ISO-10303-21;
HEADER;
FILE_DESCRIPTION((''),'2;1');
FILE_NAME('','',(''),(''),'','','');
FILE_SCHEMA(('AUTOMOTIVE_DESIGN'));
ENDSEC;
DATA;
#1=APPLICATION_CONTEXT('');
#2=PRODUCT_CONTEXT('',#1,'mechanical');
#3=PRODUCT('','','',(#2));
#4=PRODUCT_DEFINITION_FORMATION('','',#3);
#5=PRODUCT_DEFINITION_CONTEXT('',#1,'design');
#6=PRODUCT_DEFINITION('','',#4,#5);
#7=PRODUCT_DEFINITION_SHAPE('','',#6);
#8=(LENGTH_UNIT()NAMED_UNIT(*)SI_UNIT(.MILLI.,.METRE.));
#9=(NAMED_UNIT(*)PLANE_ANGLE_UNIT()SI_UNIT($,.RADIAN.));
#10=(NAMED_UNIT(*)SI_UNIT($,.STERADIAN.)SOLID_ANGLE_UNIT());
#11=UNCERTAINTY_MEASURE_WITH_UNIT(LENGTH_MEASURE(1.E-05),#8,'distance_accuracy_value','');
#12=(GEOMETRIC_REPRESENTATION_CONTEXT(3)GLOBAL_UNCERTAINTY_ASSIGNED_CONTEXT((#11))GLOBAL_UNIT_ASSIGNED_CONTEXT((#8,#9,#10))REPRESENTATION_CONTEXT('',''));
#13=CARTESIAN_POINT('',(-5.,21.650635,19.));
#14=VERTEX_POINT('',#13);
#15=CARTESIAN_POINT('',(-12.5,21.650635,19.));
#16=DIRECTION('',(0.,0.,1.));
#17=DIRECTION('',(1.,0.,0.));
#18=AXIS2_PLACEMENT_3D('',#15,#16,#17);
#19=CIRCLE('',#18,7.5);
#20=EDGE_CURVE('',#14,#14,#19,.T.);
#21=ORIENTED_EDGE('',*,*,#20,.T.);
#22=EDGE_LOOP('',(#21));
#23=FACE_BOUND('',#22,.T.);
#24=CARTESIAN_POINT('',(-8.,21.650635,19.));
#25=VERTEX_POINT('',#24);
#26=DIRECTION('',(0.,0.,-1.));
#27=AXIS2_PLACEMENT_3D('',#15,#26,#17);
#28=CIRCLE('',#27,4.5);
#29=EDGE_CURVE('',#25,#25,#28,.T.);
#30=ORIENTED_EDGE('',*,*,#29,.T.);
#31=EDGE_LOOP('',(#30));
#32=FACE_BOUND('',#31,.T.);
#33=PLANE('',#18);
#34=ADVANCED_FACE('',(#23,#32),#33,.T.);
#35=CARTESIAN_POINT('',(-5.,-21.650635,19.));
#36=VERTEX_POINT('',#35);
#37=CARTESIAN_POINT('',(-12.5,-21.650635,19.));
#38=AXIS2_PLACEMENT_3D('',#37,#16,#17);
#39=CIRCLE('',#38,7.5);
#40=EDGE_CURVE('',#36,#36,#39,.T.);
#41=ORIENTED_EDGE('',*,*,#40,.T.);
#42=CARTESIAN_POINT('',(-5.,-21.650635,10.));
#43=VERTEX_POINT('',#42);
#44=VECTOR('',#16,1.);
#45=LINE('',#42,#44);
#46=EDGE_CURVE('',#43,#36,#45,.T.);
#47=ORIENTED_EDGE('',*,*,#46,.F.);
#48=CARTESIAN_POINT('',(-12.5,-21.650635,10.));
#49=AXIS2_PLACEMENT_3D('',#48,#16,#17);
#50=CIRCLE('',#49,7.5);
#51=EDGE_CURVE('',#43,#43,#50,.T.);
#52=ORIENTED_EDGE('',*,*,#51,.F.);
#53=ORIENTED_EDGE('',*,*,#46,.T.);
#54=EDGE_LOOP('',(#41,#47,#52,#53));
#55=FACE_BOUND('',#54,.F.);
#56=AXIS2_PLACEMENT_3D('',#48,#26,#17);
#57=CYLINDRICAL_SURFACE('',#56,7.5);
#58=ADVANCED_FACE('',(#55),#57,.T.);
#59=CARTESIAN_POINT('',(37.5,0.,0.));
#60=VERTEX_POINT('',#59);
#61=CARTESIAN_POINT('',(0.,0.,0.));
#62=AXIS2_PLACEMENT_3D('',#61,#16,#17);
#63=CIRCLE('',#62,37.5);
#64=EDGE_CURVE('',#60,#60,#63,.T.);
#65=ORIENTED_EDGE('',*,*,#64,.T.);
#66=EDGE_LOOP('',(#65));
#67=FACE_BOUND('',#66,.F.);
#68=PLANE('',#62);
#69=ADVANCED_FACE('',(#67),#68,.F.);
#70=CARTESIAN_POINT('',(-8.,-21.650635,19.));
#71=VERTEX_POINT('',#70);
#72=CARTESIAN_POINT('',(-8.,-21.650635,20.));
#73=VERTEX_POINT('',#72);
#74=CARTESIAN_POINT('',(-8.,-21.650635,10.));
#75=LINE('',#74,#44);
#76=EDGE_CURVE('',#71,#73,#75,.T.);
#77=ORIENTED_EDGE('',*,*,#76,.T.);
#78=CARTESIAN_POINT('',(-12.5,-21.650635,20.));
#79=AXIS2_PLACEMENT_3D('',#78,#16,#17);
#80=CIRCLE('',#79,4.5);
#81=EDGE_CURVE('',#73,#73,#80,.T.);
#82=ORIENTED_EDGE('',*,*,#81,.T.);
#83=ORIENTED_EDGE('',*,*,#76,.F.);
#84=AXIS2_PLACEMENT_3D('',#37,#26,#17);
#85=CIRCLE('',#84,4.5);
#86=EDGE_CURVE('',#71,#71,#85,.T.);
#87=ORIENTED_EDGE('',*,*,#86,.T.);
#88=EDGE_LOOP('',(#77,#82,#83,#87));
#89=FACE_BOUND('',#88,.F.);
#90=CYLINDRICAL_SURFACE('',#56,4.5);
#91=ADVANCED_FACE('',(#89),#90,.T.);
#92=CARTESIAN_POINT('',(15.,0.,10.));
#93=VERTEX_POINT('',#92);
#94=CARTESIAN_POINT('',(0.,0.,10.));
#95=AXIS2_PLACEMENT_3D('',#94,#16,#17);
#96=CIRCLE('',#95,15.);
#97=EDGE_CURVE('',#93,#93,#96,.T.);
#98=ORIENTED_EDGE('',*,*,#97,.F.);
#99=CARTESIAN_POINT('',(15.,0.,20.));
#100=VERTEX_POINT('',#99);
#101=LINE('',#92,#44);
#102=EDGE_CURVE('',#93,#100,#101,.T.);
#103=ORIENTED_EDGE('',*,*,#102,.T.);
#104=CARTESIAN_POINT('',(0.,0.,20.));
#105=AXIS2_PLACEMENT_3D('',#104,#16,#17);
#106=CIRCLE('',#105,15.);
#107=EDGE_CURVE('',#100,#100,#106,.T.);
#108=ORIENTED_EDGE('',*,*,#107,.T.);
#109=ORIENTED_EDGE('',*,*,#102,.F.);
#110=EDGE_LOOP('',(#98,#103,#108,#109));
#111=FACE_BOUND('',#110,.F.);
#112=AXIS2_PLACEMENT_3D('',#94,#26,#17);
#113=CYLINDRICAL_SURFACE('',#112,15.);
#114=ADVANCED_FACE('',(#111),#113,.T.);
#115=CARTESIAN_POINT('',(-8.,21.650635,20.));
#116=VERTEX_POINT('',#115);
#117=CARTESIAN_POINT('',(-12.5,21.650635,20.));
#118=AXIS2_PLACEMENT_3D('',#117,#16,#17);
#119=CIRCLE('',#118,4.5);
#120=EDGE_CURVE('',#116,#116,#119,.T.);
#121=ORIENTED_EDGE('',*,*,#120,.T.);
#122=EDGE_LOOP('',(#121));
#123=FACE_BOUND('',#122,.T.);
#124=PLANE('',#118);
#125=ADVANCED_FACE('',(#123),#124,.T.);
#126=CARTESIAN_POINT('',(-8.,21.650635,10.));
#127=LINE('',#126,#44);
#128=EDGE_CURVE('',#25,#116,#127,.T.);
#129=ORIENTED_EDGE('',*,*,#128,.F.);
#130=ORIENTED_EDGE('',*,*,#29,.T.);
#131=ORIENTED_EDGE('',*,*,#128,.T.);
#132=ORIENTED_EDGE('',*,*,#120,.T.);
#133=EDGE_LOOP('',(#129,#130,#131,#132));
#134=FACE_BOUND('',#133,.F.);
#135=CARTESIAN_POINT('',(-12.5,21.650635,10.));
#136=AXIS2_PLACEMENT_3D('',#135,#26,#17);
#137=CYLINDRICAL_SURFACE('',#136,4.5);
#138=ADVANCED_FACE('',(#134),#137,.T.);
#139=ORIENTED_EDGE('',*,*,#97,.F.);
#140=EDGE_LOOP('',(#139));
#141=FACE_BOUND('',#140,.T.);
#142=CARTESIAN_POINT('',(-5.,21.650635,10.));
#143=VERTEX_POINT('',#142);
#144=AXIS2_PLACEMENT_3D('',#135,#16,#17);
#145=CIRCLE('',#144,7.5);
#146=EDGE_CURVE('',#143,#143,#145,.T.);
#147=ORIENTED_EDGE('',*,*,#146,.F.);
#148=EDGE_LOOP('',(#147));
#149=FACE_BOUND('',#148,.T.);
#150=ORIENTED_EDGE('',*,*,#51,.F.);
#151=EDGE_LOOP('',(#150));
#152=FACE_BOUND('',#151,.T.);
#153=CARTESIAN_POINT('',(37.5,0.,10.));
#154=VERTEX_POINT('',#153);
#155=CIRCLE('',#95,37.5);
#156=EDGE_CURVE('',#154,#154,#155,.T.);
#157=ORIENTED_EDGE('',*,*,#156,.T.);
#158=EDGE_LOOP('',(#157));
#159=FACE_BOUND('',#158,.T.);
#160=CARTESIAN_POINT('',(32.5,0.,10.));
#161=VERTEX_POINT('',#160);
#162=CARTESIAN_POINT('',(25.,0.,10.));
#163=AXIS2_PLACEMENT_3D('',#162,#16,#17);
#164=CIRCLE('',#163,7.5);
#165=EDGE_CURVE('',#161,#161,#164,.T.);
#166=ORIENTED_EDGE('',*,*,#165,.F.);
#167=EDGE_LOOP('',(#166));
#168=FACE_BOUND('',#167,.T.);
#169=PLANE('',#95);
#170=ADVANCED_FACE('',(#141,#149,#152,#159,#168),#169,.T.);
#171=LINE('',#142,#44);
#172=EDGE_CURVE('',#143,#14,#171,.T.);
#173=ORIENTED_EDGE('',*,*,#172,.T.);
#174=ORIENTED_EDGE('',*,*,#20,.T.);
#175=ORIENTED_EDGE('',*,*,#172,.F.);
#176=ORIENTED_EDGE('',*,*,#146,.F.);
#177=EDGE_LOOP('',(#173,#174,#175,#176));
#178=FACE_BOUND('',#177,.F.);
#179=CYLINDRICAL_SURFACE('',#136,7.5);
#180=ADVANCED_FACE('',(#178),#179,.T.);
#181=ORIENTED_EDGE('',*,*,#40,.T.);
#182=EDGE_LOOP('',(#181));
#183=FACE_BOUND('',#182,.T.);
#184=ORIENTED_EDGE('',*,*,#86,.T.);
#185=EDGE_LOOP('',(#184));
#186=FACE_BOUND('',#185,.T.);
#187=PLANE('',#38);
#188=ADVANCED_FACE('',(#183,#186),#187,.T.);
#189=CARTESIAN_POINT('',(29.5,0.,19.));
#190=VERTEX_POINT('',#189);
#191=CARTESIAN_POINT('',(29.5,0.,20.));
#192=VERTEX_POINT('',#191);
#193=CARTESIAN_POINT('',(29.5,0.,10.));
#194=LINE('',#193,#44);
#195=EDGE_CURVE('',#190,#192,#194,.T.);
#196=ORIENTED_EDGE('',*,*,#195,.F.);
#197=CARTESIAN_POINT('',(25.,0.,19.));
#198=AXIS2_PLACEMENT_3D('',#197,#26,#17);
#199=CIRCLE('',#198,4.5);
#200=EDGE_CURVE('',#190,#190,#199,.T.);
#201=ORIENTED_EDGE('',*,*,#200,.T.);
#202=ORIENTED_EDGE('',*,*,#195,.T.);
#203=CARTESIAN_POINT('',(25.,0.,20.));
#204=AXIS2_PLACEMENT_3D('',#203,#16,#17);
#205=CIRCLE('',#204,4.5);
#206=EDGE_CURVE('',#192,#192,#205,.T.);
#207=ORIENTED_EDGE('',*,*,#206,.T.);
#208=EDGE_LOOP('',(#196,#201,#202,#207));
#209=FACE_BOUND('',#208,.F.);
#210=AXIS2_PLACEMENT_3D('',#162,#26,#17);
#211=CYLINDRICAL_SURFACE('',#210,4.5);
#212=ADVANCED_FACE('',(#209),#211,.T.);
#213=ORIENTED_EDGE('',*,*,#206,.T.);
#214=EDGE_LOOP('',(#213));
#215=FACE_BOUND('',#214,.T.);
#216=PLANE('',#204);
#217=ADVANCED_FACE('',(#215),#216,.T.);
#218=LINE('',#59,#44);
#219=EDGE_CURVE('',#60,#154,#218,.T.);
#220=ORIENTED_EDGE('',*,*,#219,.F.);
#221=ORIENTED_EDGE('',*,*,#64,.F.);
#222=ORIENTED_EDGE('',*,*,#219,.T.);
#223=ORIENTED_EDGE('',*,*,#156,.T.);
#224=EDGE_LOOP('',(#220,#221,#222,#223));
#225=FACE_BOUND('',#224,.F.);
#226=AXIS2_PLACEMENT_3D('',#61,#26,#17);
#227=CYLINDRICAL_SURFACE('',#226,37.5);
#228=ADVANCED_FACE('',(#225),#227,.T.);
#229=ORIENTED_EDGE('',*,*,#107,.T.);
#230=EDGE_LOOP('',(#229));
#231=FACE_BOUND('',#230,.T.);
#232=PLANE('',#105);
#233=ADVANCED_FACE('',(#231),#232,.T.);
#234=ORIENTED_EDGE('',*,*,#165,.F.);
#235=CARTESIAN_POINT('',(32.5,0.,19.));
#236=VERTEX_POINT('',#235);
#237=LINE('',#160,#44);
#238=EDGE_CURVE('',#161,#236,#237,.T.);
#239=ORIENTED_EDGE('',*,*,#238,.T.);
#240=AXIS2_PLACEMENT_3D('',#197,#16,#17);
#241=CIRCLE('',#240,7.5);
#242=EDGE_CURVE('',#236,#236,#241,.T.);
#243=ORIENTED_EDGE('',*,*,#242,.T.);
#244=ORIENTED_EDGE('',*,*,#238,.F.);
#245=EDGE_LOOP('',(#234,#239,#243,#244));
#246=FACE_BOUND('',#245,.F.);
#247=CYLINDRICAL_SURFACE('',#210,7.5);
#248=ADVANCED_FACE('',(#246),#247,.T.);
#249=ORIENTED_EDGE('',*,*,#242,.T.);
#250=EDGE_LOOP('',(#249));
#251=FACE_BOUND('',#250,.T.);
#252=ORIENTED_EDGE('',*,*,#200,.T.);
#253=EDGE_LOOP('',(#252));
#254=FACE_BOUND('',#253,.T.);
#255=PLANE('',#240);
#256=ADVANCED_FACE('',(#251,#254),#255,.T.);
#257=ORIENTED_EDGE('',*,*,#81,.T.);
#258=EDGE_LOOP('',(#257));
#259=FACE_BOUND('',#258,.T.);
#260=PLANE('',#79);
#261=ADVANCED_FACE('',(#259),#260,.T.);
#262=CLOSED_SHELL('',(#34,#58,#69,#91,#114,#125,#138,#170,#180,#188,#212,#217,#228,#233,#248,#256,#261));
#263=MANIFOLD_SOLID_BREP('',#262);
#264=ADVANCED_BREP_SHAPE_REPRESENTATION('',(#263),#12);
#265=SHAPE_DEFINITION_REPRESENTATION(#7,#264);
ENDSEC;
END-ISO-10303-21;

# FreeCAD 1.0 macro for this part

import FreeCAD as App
import Part
import Sketcher
Q = App.Units.Quantity

doc = App.newDocument("Part")
params = doc.addObject("Spreadsheet::Sheet", "Params")
for row, (alias, value) in enumerate([
    ("sketch1_diameter", "75 mm"),
    ("pad1_length", "10 mm"),
    ("sketch2_diameter", "30 mm"),
    ("pad2_length", "10 mm"),
    ("sketch3_diameter", "9 mm"),
    ("pad3_length", "10 mm"),
    ("sketch4_diameter", "15 mm"),
    ("pad4_length", "9 mm"),
    ("sketch5_diameter", "9 mm"),
    ("pad5_length", "10 mm"),
    ("sketch6_diameter", "15 mm"),
    ("pad6_length", "9 mm"),
    ("sketch7_diameter", "9 mm"),
    ("pad7_length", "10 mm"),
    ("sketch8_diameter", "15 mm"),
    ("pad8_length", "9 mm"),
], start=1):
    params.set(f"A{row}", alias)
    params.set(f"B{row}", "=" + value)
    params.setAlias(f"B{row}", alias)

body = doc.addObject("PartDesign::Body", "Body")

# Sketch on XY plane
sketch1 = body.newObject("Sketcher::SketchObject", "Sketch")
sketch1.AttachmentSupport = (doc.getObject("XY_Plane"), [""])
sketch1.MapMode = "FlatFace"
sketch1.addGeometry(Part.Circle(App.Vector(0, 0, 0), App.Vector(0, 0, 1), 37.5), False)
sketch1.addConstraint(Sketcher.Constraint("Coincident", 0, 3, -1, 1))
sketch1.addConstraint(Sketcher.Constraint("Diameter", 0, Q("75 mm")))
sketch1.setExpression("Constraints[1]", "Params.sketch1_diameter")
pad1 = body.newObject("PartDesign::Pad", "Pad")
pad1.Profile = sketch1
pad1.setExpression("Length", "Params.pad1_length")

# Sketch on XY plane
sketch2 = body.newObject("Sketcher::SketchObject", "Sketch001")
sketch2.AttachmentSupport = (doc.getObject("XY_Plane"), [""])
sketch2.MapMode = "FlatFace"
sketch2.AttachmentOffset = App.Placement(App.Vector(0, 0, 10), App.Rotation())
sketch2.addGeometry(Part.Circle(App.Vector(0, 0, 0), App.Vector(0, 0, 1), 15), False)
sketch2.addConstraint(Sketcher.Constraint("Coincident", 0, 3, -1, 1))
sketch2.addConstraint(Sketcher.Constraint("Diameter", 0, Q("30 mm")))
sketch2.setExpression("Constraints[1]", "Params.sketch2_diameter")
pad2 = body.newObject("PartDesign::Pad", "Pad001")
pad2.Profile = sketch2
pad2.setExpression("Length", "Params.pad2_length")

# Sketch on XY plane
sketch3 = body.newObject("Sketcher::SketchObject", "Sketch002")
sketch3.AttachmentSupport = (doc.getObject("XY_Plane"), [""])
sketch3.MapMode = "FlatFace"
sketch3.AttachmentOffset = App.Placement(App.Vector(0, 0, 10), App.Rotation())
sketch3.addGeometry(Part.Circle(App.Vector(25, 0, 0), App.Vector(0, 0, 1), 4.5), False)
sketch3.addConstraint(Sketcher.Constraint("PointOnObject", 0, 3, -1))
sketch3.addConstraint(Sketcher.Constraint("Diameter", 0, Q("9 mm")))
sketch3.addConstraint(Sketcher.Constraint("DistanceX", -1, 1, 0, 3, Q("25 mm")))
sketch3.setExpression("Constraints[1]", "Params.sketch3_diameter")
pad3 = body.newObject("PartDesign::Pad", "Pad002")
pad3.Profile = sketch3
pad3.setExpression("Length", "Params.pad3_length")

# Sketch on XY plane
sketch4 = body.newObject("Sketcher::SketchObject", "Sketch003")
sketch4.AttachmentSupport = (doc.getObject("XY_Plane"), [""])
sketch4.MapMode = "FlatFace"
sketch4.AttachmentOffset = App.Placement(App.Vector(0, 0, 10), App.Rotation())
sketch4.addGeometry(Part.Circle(App.Vector(25, 0, 0), App.Vector(0, 0, 1), 7.5), False)
sketch4.addConstraint(Sketcher.Constraint("PointOnObject", 0, 3, -1))
sketch4.addConstraint(Sketcher.Constraint("Diameter", 0, Q("15 mm")))
sketch4.addConstraint(Sketcher.Constraint("DistanceX", -1, 1, 0, 3, Q("25 mm")))
sketch4.setExpression("Constraints[1]", "Params.sketch4_diameter")
pad4 = body.newObject("PartDesign::Pad", "Pad003")
pad4.Profile = sketch4
pad4.setExpression("Length", "Params.pad4_length")

# Sketch on XY plane
sketch5 = body.newObject("Sketcher::SketchObject", "Sketch004")
sketch5.AttachmentSupport = (doc.getObject("XY_Plane"), [""])
sketch5.MapMode = "FlatFace"
sketch5.AttachmentOffset = App.Placement(App.Vector(0, 0, 10), App.Rotation())
sketch5.addGeometry(Part.Circle(App.Vector(-12.5, 21.650635, 0), App.Vector(0, 0, 1), 4.5), False)
sketch5.addConstraint(Sketcher.Constraint("Diameter", 0, Q("9 mm")))
sketch5.addConstraint(Sketcher.Constraint("DistanceX", 0, 3, -1, 1, Q("12.5 mm")))
sketch5.addConstraint(Sketcher.Constraint("DistanceY", -1, 1, 0, 3, Q("21.650635 mm")))
sketch5.setExpression("Constraints[0]", "Params.sketch5_diameter")
pad5 = body.newObject("PartDesign::Pad", "Pad004")
pad5.Profile = sketch5
pad5.setExpression("Length", "Params.pad5_length")

# Sketch on XY plane
sketch6 = body.newObject("Sketcher::SketchObject", "Sketch005")
sketch6.AttachmentSupport = (doc.getObject("XY_Plane"), [""])
sketch6.MapMode = "FlatFace"
sketch6.AttachmentOffset = App.Placement(App.Vector(0, 0, 10), App.Rotation())
sketch6.addGeometry(Part.Circle(App.Vector(-12.5, 21.650635, 0), App.Vector(0, 0, 1), 7.5), False)
sketch6.addConstraint(Sketcher.Constraint("Diameter", 0, Q("15 mm")))
sketch6.addConstraint(Sketcher.Constraint("DistanceX", 0, 3, -1, 1, Q("12.5 mm")))
sketch6.addConstraint(Sketcher.Constraint("DistanceY", -1, 1, 0, 3, Q("21.650635 mm")))
sketch6.setExpression("Constraints[0]", "Params.sketch6_diameter")
pad6 = body.newObject("PartDesign::Pad", "Pad005")
pad6.Profile = sketch6
pad6.setExpression("Length", "Params.pad6_length")

# Sketch on XY plane
sketch7 = body.newObject("Sketcher::SketchObject", "Sketch006")
sketch7.AttachmentSupport = (doc.getObject("XY_Plane"), [""])
sketch7.MapMode = "FlatFace"
sketch7.AttachmentOffset = App.Placement(App.Vector(0, 0, 10), App.Rotation())
sketch7.addGeometry(Part.Circle(App.Vector(-12.5, -21.650635, 0), App.Vector(0, 0, 1), 4.5), False)
sketch7.addConstraint(Sketcher.Constraint("Diameter", 0, Q("9 mm")))
sketch7.addConstraint(Sketcher.Constraint("DistanceX", 0, 3, -1, 1, Q("12.5 mm")))
sketch7.addConstraint(Sketcher.Constraint("DistanceY", 0, 3, -1, 1, Q("21.650635 mm")))
sketch7.setExpression("Constraints[0]", "Params.sketch7_diameter")
pad7 = body.newObject("PartDesign::Pad", "Pad006")
pad7.Profile = sketch7
pad7.setExpression("Length", "Params.pad7_length")

# Sketch on XY plane
sketch8 = body.newObject("Sketcher::SketchObject", "Sketch007")
sketch8.AttachmentSupport = (doc.getObject("XY_Plane"), [""])
sketch8.MapMode = "FlatFace"
sketch8.AttachmentOffset = App.Placement(App.Vector(0, 0, 10), App.Rotation())
sketch8.addGeometry(Part.Circle(App.Vector(-12.5, -21.650635, 0), App.Vector(0, 0, 1), 7.5), False)
sketch8.addConstraint(Sketcher.Constraint("Diameter", 0, Q("15 mm")))
sketch8.addConstraint(Sketcher.Constraint("DistanceX", 0, 3, -1, 1, Q("12.5 mm")))
sketch8.addConstraint(Sketcher.Constraint("DistanceY", 0, 3, -1, 1, Q("21.650635 mm")))
sketch8.setExpression("Constraints[0]", "Params.sketch8_diameter")
pad8 = body.newObject("PartDesign::Pad", "Pad007")
pad8.Profile = sketch8
pad8.setExpression("Length", "Params.pad8_length")

doc.recompute()
